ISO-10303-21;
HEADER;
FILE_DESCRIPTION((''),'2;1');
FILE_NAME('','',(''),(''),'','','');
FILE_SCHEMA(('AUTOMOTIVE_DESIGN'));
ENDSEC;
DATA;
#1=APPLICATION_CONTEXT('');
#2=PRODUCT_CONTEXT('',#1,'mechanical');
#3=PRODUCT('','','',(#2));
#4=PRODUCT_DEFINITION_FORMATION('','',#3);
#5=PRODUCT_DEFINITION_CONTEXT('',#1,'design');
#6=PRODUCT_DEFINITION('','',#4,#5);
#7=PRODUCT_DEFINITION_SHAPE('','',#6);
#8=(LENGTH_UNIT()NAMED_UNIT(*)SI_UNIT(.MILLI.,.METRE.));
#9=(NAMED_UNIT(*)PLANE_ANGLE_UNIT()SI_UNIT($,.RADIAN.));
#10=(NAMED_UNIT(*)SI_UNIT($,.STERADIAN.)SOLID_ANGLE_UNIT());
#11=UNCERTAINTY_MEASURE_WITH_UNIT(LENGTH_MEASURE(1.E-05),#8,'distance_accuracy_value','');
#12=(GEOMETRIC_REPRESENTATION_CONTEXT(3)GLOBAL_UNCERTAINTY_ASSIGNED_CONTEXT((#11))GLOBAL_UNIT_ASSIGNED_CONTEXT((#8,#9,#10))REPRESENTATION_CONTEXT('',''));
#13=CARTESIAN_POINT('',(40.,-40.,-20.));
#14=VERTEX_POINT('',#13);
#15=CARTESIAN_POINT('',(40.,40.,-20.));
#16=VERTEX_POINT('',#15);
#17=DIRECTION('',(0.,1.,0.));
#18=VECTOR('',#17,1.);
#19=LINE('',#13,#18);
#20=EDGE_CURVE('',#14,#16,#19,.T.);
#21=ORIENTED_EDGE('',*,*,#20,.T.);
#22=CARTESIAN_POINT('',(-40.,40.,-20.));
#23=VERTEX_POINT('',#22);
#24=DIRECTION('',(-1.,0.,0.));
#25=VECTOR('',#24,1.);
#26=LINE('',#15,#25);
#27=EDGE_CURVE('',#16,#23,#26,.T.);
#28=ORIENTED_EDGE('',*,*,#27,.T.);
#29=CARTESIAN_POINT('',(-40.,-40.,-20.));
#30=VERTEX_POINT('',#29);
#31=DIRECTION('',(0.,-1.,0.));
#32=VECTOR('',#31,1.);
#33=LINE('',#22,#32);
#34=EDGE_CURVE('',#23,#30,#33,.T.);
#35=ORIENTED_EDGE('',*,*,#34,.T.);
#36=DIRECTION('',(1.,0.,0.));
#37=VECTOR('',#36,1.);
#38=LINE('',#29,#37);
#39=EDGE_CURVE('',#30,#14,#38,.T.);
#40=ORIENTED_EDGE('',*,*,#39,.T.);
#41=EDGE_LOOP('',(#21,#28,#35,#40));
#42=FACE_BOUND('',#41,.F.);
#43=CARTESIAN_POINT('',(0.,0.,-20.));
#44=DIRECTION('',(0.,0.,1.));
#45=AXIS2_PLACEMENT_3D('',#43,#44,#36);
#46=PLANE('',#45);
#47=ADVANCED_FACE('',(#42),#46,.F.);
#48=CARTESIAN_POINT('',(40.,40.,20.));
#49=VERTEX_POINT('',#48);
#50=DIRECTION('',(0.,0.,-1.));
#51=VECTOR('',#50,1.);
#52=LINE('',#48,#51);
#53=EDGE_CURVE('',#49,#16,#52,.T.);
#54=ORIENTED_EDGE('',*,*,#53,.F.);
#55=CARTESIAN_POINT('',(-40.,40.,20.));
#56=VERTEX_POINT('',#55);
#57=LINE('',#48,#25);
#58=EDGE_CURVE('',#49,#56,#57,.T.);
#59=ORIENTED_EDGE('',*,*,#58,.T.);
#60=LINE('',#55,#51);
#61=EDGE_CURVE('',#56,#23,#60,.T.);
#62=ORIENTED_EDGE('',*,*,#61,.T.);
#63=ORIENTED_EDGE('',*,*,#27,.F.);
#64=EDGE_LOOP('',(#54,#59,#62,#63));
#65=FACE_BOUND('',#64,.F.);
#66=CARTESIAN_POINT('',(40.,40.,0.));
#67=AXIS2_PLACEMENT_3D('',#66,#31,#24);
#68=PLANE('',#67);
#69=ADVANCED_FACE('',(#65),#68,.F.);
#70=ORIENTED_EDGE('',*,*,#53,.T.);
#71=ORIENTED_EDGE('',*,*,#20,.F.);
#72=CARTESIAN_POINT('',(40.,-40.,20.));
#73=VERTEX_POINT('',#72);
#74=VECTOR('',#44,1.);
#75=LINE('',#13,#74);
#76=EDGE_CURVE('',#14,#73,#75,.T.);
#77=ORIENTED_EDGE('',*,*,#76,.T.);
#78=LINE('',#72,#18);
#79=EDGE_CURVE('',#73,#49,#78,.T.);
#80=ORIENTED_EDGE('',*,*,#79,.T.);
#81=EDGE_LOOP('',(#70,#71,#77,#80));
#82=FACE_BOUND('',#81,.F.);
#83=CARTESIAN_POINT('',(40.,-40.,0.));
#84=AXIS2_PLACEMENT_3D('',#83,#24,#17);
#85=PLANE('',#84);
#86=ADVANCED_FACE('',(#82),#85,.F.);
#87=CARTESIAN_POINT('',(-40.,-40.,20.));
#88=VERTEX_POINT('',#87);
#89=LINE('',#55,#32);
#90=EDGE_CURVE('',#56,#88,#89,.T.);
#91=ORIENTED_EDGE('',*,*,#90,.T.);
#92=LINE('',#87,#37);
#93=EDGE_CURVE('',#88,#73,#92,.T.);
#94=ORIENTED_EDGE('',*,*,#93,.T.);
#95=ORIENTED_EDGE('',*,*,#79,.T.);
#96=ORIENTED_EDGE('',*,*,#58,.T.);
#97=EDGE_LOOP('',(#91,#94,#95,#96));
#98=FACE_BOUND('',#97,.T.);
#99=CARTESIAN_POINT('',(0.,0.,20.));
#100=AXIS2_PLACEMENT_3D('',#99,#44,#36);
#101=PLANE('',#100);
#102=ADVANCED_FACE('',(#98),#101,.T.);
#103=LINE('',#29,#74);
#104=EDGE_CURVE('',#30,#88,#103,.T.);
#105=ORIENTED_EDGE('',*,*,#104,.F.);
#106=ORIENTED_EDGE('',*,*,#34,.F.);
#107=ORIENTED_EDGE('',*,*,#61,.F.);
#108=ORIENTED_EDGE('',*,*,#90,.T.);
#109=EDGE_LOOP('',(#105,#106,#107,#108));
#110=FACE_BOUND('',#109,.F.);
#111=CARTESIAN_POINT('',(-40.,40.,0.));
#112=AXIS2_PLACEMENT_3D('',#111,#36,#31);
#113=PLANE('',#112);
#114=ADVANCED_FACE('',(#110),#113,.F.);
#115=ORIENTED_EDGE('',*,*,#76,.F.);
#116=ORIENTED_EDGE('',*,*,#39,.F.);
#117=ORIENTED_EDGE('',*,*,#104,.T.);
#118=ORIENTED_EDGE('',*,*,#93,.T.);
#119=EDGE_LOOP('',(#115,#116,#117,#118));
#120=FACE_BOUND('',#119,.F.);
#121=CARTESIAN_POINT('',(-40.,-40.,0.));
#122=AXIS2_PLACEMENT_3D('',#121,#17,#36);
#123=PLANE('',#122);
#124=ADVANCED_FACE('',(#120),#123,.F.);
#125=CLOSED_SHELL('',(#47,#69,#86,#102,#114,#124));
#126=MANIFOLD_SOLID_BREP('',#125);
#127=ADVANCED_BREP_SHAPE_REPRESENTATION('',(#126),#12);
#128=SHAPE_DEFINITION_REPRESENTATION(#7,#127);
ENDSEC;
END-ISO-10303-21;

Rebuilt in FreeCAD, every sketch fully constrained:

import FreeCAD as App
import Part
import Sketcher


def add_polygon(sketch, points):
    """Adds a closed chain of lines whose ends are joined by coincident constraints."""
    first, n = sketch.GeometryCount, len(points)
    for a, b in zip(points, points[1:] + points[:1]):
        sketch.addGeometry(Part.LineSegment(App.Vector(*a, 0), App.Vector(*b, 0)), False)
    for i in range(n):
        sketch.addConstraint(Sketcher.Constraint("Coincident", first + i, 2, first + (i + 1) % n, 1))

doc = App.newDocument("Part")
body = doc.addObject("PartDesign::Body", "Body")

# Sketch on XY plane
sketch1 = doc.addObject("Sketcher::SketchObject", "Sketch")
body.addObject(sketch1)
sketch1.AttachmentSupport = (doc.XY_Plane, [""])
sketch1.MapMode = "FlatFace"
add_polygon(sketch1, [(-40, 40), (-40, -40), (40, -40), (40, 40)])  # lines 0-3
sketch1.addConstraint([
    Sketcher.Constraint("Vertical", 0),
    Sketcher.Constraint("Horizontal", 1),
    Sketcher.Constraint("Vertical", 2),
    Sketcher.Constraint("Horizontal", 3),
    Sketcher.Constraint("Symmetric", 0, 2, 2, 2, -1, 1),
    Sketcher.Constraint("Equal", 3, 0),
    Sketcher.Constraint("DistanceX", 1, 1, 1, 2, 80.0),
])
pad1 = doc.addObject("PartDesign::Pad", "Pad")
body.addObject(pad1)
pad1.Profile = sketch1
pad1.Length = 40
pad1.Midplane = True

doc.recompute()
